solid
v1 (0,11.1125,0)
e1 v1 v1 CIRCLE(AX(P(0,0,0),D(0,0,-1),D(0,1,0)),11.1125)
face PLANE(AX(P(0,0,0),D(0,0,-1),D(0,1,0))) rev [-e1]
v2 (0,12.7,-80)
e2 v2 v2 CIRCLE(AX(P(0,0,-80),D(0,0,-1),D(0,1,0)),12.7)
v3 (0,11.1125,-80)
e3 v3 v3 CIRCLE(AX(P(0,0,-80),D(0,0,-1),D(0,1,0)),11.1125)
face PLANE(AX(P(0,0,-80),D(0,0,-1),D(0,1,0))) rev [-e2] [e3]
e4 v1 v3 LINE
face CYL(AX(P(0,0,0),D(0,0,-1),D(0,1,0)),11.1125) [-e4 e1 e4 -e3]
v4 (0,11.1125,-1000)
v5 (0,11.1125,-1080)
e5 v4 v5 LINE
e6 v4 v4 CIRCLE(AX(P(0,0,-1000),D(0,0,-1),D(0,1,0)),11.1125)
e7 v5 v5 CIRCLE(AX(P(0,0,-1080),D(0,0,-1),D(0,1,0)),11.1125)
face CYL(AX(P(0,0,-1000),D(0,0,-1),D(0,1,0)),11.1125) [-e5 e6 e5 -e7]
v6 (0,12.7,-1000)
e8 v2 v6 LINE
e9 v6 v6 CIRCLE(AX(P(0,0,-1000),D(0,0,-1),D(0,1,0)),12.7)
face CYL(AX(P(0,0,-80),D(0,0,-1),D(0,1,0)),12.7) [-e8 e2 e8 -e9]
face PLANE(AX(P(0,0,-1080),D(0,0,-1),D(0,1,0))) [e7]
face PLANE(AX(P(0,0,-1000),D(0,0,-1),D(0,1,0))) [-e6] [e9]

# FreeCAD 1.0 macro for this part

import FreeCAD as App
import Part
import Sketcher

V = App.Vector

doc = App.newDocument("Part")
params = doc.addObject("Spreadsheet::Sheet", "Params")
for row, (alias, value) in enumerate([
    ("sketch1_height", "80 mm"),
    ("sketch1_height2", "920 mm"),
    ("revolution_angle", "360 deg"),
], start=1):
    params.set(f"A{row}", alias)
    params.set(f"B{row}", "=" + value)
    params.setAlias(f"B{row}", alias)

body = doc.addObject("PartDesign::Body", "Body")

sketch1 = body.newObject("Sketcher::SketchObject", "Sketch")
sketch1.AttachmentSupport = (doc.getObject("YZ_Plane"), [""])
sketch1.MapMode = "FlatFace"
sketch1.addGeometry([
    Part.LineSegment(V(11.1, 0, 0), V(0, 0, 0)),
    Part.LineSegment(V(0, 0, 0), V(0, -1080, 0)),
    Part.LineSegment(V(0, -1080, 0), V(11.1, -1080, 0)),
    Part.LineSegment(V(11.1, -1080, 0), V(11.1, -1000, 0)),
    Part.LineSegment(V(11.1, -1000, 0), V(12.7, -1000, 0)),
    Part.LineSegment(V(12.7, -1000, 0), V(12.7, -80, 0)),
    Part.LineSegment(V(12.7, -80, 0), V(11.1, -80, 0)),
    Part.LineSegment(V(11.1, -80, 0), V(11.1, 0, 0)),
], False)
sketch1.addConstraint([
    Sketcher.Constraint("Coincident", 0, 2, 1, 1),
    Sketcher.Constraint("Coincident", 1, 2, 2, 1),
    Sketcher.Constraint("Coincident", 2, 2, 3, 1),
    Sketcher.Constraint("Coincident", 3, 2, 4, 1),
    Sketcher.Constraint("Coincident", 4, 2, 5, 1),
    Sketcher.Constraint("Coincident", 5, 2, 6, 1),
    Sketcher.Constraint("Coincident", 6, 2, 7, 1),
    Sketcher.Constraint("Coincident", 7, 2, 0, 1),
    Sketcher.Constraint("Horizontal", 0),
    Sketcher.Constraint("Vertical", 1),
    Sketcher.Constraint("Horizontal", 2),
    Sketcher.Constraint("Vertical", 3),
    Sketcher.Constraint("Horizontal", 4),
    Sketcher.Constraint("Vertical", 5),
    Sketcher.Constraint("Horizontal", 6),
    Sketcher.Constraint("Vertical", 7),
    Sketcher.Constraint("Coincident", 0, 2, -1, 1),
    Sketcher.Constraint("Vertical", 3, 2, 6, 2),
    Sketcher.Constraint("Equal", 3, 7),
    Sketcher.Constraint("DistanceY", 3, 1, 3, 2, 80.0),
    Sketcher.Constraint("DistanceY", 5, 1, 5, 2, 920.0),
    Sketcher.Constraint("DistanceX", 0, 2, 0, 1, 11.1125),
    Sketcher.Constraint("DistanceX", 4, 1, 4, 2, 1.5875),
])
sketch1.setExpression("Constraints[19]", "Params.sketch1_height")
sketch1.setExpression("Constraints[20]", "Params.sketch1_height2")
revolution = body.newObject("PartDesign::Revolution", "Revolution")
revolution.Profile = sketch1
revolution.ReferenceAxis = (sketch1, ["V_Axis"])
revolution.setExpression("Angle", "Params.revolution_angle")

doc.recompute()
